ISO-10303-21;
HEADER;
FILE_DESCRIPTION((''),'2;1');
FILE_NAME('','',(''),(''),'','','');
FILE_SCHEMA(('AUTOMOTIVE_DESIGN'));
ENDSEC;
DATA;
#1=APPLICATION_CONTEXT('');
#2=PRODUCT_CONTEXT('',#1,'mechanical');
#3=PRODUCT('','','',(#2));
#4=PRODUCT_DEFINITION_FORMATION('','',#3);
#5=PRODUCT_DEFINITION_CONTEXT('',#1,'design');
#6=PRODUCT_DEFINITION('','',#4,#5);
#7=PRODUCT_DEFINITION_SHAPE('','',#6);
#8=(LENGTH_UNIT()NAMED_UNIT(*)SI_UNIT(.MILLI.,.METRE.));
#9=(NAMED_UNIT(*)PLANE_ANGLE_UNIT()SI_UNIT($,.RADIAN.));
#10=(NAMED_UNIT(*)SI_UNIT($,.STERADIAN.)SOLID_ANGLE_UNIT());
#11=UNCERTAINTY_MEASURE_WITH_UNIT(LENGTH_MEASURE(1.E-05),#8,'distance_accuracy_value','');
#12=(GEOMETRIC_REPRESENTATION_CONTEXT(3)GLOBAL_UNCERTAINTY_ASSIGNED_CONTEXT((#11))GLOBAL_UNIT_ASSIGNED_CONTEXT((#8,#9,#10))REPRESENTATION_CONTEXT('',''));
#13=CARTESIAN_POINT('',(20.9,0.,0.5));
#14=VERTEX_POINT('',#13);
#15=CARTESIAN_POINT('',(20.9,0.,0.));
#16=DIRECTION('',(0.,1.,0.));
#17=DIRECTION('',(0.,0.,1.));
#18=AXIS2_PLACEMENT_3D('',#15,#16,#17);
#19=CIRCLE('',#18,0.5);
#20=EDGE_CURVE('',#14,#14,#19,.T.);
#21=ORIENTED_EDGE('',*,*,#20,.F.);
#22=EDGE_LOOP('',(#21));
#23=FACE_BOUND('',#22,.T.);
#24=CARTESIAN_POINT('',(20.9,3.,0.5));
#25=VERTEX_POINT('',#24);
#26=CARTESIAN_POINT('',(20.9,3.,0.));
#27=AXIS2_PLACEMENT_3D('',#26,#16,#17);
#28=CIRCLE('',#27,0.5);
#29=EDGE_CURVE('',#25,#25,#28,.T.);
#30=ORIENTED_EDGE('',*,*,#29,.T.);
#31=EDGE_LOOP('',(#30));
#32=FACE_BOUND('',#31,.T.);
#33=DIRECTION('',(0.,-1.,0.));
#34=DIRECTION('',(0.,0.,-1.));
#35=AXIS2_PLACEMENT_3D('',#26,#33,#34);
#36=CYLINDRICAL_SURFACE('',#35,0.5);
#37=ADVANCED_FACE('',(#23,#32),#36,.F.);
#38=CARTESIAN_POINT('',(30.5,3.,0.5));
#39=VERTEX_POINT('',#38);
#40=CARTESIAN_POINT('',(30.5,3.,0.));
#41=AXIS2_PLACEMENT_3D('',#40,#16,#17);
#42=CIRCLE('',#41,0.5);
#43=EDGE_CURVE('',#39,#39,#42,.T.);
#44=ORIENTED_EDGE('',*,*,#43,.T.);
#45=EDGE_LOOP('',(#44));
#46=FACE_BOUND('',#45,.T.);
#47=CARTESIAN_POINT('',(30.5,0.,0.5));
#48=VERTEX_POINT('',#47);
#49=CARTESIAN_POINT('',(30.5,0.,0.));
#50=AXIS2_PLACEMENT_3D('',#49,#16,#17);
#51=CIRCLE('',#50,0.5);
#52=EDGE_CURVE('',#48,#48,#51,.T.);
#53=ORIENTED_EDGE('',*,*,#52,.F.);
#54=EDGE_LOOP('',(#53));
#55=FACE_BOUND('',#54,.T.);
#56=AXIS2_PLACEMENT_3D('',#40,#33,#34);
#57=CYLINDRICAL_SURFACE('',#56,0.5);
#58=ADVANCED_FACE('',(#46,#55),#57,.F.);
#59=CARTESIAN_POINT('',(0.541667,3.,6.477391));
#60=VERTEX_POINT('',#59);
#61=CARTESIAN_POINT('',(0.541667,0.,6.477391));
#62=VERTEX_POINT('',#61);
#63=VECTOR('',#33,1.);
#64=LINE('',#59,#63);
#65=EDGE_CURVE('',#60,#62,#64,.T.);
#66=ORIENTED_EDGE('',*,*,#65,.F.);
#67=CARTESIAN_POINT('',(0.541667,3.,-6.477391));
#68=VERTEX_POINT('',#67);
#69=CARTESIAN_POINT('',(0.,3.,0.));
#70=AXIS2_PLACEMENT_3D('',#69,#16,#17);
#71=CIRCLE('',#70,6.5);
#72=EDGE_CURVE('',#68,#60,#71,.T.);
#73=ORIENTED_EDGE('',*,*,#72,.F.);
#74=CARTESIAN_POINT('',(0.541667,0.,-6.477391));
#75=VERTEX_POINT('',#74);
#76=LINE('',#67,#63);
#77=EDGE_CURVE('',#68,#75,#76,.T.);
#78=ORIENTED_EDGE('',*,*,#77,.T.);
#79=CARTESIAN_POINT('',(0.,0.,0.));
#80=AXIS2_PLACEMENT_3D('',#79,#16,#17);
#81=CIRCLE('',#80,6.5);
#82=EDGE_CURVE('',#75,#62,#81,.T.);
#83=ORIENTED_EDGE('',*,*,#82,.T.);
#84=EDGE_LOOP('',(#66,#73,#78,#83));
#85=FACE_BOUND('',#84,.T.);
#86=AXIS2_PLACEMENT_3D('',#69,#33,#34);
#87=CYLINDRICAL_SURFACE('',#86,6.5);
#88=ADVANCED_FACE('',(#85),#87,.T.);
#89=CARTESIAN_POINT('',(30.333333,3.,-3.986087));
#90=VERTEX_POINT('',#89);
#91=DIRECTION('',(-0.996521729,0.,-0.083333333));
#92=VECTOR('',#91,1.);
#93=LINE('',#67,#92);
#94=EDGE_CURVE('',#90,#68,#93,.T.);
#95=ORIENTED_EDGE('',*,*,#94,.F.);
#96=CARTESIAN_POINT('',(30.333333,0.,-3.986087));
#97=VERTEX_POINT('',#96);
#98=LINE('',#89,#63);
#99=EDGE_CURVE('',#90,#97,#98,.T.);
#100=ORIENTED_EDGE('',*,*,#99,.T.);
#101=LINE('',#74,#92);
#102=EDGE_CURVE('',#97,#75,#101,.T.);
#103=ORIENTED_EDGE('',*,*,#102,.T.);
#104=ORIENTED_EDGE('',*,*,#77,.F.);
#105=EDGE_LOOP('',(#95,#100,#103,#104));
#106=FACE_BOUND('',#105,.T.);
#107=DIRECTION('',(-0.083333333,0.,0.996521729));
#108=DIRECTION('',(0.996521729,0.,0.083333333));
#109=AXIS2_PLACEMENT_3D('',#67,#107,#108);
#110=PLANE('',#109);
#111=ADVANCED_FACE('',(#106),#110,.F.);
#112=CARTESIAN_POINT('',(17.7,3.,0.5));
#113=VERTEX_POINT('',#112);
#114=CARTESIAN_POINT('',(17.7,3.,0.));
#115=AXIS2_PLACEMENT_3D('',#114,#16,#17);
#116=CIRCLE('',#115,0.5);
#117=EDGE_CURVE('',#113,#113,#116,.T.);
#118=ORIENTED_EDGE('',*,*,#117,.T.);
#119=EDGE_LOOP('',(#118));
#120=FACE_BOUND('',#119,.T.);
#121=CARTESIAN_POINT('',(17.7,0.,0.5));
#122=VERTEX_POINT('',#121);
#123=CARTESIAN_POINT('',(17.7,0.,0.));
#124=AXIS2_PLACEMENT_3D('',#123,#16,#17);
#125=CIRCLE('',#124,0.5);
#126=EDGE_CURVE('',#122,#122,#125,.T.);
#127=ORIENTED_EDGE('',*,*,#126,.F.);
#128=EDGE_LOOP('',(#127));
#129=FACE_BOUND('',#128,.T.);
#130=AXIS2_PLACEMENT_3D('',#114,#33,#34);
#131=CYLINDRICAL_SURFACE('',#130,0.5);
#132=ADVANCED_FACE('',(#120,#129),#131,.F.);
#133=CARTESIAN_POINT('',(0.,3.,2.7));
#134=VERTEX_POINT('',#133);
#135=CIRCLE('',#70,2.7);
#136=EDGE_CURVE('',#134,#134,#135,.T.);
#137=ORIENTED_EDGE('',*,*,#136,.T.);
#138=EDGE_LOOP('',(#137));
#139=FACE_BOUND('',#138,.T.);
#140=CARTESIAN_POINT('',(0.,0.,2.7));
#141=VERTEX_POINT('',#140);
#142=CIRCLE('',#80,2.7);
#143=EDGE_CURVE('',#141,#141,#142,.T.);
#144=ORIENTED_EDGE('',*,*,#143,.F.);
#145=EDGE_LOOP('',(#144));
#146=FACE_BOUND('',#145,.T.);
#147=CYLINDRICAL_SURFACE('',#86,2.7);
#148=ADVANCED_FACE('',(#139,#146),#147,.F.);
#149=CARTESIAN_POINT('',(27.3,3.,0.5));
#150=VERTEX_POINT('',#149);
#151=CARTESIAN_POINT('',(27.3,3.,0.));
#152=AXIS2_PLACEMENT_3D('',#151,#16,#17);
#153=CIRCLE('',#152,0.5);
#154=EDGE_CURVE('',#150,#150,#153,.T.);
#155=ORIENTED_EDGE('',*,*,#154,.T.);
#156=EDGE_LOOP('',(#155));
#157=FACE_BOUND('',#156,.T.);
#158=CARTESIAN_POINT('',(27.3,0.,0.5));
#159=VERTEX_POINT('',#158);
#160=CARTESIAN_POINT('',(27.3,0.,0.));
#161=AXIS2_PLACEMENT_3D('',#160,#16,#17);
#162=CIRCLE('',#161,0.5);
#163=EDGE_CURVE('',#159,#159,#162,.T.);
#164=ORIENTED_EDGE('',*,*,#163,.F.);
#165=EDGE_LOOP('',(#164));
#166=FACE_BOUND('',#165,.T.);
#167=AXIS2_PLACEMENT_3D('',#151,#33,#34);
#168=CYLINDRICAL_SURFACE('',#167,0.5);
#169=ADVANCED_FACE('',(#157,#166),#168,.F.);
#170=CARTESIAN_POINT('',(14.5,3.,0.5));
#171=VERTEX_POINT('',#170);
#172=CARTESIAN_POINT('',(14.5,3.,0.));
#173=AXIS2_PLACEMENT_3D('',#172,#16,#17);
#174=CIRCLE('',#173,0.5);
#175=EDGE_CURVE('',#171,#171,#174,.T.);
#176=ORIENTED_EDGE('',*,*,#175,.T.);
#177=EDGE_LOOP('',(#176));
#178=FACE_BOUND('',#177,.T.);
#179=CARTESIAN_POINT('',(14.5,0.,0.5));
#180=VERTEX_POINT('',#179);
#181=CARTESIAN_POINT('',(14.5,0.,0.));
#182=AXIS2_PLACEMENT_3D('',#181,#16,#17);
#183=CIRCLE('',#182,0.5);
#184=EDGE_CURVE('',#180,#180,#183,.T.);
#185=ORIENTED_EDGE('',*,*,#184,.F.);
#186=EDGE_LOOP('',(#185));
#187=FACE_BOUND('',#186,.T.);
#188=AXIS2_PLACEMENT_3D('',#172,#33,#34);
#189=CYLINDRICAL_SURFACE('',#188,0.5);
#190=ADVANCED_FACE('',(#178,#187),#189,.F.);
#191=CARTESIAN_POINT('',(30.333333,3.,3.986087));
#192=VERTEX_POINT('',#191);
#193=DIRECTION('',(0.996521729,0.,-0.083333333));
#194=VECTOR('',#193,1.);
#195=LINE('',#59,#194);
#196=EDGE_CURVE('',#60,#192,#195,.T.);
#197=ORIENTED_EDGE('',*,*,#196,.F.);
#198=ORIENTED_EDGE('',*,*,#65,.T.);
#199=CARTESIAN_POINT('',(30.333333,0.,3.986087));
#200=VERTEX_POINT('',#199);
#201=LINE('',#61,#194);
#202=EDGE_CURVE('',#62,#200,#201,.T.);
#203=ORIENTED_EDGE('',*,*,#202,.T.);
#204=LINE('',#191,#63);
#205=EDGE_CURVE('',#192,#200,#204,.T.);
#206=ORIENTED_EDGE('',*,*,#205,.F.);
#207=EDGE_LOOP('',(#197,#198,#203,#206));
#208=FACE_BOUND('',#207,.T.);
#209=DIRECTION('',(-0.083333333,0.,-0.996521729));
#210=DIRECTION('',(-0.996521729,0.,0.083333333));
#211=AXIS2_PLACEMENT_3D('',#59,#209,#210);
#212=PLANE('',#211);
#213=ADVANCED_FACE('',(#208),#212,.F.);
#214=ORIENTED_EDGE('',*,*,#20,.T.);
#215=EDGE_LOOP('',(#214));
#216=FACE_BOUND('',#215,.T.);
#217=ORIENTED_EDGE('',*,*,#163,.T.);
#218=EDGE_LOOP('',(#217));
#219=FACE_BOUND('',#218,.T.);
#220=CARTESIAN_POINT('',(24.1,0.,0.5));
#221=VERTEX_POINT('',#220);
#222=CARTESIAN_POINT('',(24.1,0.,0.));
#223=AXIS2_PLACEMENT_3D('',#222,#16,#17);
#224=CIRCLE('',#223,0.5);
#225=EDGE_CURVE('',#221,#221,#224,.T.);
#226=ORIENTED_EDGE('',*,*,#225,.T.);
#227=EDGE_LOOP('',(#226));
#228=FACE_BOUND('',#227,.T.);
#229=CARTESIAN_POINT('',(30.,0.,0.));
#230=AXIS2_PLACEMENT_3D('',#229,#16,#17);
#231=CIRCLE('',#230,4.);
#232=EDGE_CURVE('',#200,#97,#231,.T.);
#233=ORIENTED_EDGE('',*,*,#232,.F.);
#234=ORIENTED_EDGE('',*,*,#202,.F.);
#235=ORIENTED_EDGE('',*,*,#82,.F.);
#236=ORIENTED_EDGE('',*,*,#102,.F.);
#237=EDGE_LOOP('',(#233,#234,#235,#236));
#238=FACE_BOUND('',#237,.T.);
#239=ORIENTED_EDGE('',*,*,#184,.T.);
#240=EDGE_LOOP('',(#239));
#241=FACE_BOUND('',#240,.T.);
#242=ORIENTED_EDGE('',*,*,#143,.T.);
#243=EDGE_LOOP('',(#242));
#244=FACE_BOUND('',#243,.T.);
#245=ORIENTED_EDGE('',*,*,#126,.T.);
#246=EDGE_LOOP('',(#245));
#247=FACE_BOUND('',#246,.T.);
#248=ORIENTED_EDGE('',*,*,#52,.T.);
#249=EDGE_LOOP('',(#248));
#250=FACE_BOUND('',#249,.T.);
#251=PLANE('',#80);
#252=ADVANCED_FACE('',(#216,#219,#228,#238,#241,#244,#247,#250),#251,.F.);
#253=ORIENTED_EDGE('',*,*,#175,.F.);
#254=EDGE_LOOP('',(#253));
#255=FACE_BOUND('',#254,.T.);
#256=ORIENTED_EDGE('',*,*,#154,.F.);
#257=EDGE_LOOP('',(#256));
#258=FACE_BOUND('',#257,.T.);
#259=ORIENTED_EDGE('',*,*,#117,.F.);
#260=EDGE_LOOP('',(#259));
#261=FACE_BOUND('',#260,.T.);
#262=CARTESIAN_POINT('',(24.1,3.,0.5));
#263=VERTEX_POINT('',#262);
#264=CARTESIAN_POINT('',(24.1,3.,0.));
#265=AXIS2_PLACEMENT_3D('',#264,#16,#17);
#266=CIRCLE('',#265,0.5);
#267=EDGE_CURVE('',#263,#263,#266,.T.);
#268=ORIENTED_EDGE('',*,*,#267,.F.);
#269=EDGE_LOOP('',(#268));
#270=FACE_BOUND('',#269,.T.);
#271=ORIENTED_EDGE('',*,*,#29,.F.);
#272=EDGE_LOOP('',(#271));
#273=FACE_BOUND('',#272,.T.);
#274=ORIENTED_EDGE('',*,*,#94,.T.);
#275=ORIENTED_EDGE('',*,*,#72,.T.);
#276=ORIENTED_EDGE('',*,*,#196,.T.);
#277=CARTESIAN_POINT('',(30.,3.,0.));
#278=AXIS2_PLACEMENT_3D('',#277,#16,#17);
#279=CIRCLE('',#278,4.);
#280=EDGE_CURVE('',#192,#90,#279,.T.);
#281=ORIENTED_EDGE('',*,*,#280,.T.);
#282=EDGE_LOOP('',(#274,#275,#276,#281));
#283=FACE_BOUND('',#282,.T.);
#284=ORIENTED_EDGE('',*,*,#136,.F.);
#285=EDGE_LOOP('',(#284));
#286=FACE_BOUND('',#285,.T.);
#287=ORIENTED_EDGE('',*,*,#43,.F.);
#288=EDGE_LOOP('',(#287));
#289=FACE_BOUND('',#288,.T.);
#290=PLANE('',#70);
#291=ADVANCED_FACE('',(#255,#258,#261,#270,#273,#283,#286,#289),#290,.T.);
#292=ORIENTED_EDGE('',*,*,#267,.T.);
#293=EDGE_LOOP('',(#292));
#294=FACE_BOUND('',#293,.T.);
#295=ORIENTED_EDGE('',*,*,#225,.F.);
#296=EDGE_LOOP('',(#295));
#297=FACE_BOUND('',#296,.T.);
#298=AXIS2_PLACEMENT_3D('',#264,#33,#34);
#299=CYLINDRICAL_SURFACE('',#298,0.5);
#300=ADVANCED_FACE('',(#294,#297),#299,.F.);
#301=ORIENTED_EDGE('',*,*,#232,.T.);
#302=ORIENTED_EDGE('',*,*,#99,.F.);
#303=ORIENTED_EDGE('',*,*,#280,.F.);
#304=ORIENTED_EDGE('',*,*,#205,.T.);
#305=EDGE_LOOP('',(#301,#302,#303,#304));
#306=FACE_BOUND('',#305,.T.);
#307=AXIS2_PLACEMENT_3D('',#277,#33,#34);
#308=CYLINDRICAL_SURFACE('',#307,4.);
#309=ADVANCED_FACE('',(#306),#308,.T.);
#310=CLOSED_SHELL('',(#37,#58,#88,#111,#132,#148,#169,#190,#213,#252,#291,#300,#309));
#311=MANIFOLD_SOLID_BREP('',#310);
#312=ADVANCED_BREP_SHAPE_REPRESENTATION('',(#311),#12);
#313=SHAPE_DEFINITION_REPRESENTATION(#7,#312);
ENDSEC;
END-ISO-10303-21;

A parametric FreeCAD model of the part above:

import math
import FreeCAD as App
import Part
import Sketcher
from FreeCAD import Vector
Q = App.Units.Quantity

doc = App.newDocument("Part")
body = doc.addObject("PartDesign::Body", "Body")

# Sketch on XZ plane
sketch1 = doc.addObject("Sketcher::SketchObject", "Sketch")
body.addObject(sketch1)
sketch1.AttachmentSupport = (doc.XZ_Plane, [""])
sketch1.MapMode = "FlatFace"
sketch1.addGeometry(Part.LineSegment(Vector(30.3, -4, 0), Vector(0.5, -6.5, 0)), False)
sketch1.addGeometry(Part.ArcOfCircle(Part.Circle(Vector(0, 0, 0), Vector(0, 0, 1), 6.5), math.radians(85), math.radians(275)), False)
sketch1.addGeometry(Part.LineSegment(Vector(0.5, 6.5, 0), Vector(30.3, 4, 0)), False)
sketch1.addGeometry(Part.ArcOfCircle(Part.Circle(Vector(30, 0, 0), Vector(0, 0, 1), 4), math.radians(-85), math.radians(85)), False)
sketch1.addGeometry(Part.Circle(Vector(30.5, 0, 0), Vector(0, 0, 1), 0.5), False)
sketch1.addGeometry(Part.Circle(Vector(27.3, 0, 0), Vector(0, 0, 1), 0.5), False)
sketch1.addGeometry(Part.Circle(Vector(24.1, 0, 0), Vector(0, 0, 1), 0.5), False)
sketch1.addGeometry(Part.Circle(Vector(20.9, 0, 0), Vector(0, 0, 1), 0.5), False)
sketch1.addGeometry(Part.Circle(Vector(17.7, 0, 0), Vector(0, 0, 1), 0.5), False)
sketch1.addGeometry(Part.Circle(Vector(14.5, 0, 0), Vector(0, 0, 1), 0.5), False)
sketch1.addGeometry(Part.Circle(Vector(0, 0, 0), Vector(0, 0, 1), 2.7), False)
sketch1.addConstraint(Sketcher.Constraint("Tangent", 0, 2, 1, 2))
sketch1.addConstraint(Sketcher.Constraint("Tangent", 1, 1, 2, 1))
sketch1.addConstraint(Sketcher.Constraint("Tangent", 2, 2, 3, 2))
sketch1.addConstraint(Sketcher.Constraint("Tangent", 3, 1, 0, 1))
sketch1.addConstraint(Sketcher.Constraint("Coincident", 1, 3, -1, 1))
sketch1.addConstraint(Sketcher.Constraint("Coincident", 10, 3, -1, 1))
sketch1.addConstraint(Sketcher.Constraint("Equal", 4, 5))
sketch1.addConstraint(Sketcher.Constraint("Equal", 5, 6))
sketch1.addConstraint(Sketcher.Constraint("Equal", 6, 7))
sketch1.addConstraint(Sketcher.Constraint("Equal", 7, 8))
sketch1.addConstraint(Sketcher.Constraint("Equal", 8, 9))
sketch1.addConstraint(Sketcher.Constraint("PointOnObject", 3, 3, -1))
sketch1.addConstraint(Sketcher.Constraint("PointOnObject", 4, 3, -1))
sketch1.addConstraint(Sketcher.Constraint("PointOnObject", 5, 3, -1))
sketch1.addConstraint(Sketcher.Constraint("PointOnObject", 6, 3, -1))
sketch1.addConstraint(Sketcher.Constraint("PointOnObject", 7, 3, -1))
sketch1.addConstraint(Sketcher.Constraint("PointOnObject", 8, 3, -1))
sketch1.addConstraint(Sketcher.Constraint("PointOnObject", 9, 3, -1))
sketch1.addConstraint(Sketcher.Constraint("Diameter", 4, Q("1 mm")))
sketch1.addConstraint(Sketcher.Constraint("Radius", 3, Q("4 mm")))
sketch1.addConstraint(Sketcher.Constraint("Diameter", 10, Q("5.4 mm")))
sketch1.addConstraint(Sketcher.Constraint("Radius", 1, Q("6.5 mm")))
sketch1.addConstraint(Sketcher.Constraint("DistanceX", -1, 1, 3, 3, Q("30 mm")))
sketch1.addConstraint(Sketcher.Constraint("DistanceX", -1, 1, 4, 3, Q("30.5 mm")))
sketch1.addConstraint(Sketcher.Constraint("DistanceX", -1, 1, 5, 3, Q("27.3 mm")))
sketch1.addConstraint(Sketcher.Constraint("DistanceX", -1, 1, 6, 3, Q("24.1 mm")))
sketch1.addConstraint(Sketcher.Constraint("DistanceX", -1, 1, 7, 3, Q("20.9 mm")))
sketch1.addConstraint(Sketcher.Constraint("DistanceX", -1, 1, 8, 3, Q("17.7 mm")))
sketch1.addConstraint(Sketcher.Constraint("DistanceX", -1, 1, 9, 3, Q("14.5 mm")))
pad1 = doc.addObject("PartDesign::Pad", "Pad")
body.addObject(pad1)
pad1.Profile = sketch1
pad1.Length = 3
pad1.Reversed = True

doc.recompute()
